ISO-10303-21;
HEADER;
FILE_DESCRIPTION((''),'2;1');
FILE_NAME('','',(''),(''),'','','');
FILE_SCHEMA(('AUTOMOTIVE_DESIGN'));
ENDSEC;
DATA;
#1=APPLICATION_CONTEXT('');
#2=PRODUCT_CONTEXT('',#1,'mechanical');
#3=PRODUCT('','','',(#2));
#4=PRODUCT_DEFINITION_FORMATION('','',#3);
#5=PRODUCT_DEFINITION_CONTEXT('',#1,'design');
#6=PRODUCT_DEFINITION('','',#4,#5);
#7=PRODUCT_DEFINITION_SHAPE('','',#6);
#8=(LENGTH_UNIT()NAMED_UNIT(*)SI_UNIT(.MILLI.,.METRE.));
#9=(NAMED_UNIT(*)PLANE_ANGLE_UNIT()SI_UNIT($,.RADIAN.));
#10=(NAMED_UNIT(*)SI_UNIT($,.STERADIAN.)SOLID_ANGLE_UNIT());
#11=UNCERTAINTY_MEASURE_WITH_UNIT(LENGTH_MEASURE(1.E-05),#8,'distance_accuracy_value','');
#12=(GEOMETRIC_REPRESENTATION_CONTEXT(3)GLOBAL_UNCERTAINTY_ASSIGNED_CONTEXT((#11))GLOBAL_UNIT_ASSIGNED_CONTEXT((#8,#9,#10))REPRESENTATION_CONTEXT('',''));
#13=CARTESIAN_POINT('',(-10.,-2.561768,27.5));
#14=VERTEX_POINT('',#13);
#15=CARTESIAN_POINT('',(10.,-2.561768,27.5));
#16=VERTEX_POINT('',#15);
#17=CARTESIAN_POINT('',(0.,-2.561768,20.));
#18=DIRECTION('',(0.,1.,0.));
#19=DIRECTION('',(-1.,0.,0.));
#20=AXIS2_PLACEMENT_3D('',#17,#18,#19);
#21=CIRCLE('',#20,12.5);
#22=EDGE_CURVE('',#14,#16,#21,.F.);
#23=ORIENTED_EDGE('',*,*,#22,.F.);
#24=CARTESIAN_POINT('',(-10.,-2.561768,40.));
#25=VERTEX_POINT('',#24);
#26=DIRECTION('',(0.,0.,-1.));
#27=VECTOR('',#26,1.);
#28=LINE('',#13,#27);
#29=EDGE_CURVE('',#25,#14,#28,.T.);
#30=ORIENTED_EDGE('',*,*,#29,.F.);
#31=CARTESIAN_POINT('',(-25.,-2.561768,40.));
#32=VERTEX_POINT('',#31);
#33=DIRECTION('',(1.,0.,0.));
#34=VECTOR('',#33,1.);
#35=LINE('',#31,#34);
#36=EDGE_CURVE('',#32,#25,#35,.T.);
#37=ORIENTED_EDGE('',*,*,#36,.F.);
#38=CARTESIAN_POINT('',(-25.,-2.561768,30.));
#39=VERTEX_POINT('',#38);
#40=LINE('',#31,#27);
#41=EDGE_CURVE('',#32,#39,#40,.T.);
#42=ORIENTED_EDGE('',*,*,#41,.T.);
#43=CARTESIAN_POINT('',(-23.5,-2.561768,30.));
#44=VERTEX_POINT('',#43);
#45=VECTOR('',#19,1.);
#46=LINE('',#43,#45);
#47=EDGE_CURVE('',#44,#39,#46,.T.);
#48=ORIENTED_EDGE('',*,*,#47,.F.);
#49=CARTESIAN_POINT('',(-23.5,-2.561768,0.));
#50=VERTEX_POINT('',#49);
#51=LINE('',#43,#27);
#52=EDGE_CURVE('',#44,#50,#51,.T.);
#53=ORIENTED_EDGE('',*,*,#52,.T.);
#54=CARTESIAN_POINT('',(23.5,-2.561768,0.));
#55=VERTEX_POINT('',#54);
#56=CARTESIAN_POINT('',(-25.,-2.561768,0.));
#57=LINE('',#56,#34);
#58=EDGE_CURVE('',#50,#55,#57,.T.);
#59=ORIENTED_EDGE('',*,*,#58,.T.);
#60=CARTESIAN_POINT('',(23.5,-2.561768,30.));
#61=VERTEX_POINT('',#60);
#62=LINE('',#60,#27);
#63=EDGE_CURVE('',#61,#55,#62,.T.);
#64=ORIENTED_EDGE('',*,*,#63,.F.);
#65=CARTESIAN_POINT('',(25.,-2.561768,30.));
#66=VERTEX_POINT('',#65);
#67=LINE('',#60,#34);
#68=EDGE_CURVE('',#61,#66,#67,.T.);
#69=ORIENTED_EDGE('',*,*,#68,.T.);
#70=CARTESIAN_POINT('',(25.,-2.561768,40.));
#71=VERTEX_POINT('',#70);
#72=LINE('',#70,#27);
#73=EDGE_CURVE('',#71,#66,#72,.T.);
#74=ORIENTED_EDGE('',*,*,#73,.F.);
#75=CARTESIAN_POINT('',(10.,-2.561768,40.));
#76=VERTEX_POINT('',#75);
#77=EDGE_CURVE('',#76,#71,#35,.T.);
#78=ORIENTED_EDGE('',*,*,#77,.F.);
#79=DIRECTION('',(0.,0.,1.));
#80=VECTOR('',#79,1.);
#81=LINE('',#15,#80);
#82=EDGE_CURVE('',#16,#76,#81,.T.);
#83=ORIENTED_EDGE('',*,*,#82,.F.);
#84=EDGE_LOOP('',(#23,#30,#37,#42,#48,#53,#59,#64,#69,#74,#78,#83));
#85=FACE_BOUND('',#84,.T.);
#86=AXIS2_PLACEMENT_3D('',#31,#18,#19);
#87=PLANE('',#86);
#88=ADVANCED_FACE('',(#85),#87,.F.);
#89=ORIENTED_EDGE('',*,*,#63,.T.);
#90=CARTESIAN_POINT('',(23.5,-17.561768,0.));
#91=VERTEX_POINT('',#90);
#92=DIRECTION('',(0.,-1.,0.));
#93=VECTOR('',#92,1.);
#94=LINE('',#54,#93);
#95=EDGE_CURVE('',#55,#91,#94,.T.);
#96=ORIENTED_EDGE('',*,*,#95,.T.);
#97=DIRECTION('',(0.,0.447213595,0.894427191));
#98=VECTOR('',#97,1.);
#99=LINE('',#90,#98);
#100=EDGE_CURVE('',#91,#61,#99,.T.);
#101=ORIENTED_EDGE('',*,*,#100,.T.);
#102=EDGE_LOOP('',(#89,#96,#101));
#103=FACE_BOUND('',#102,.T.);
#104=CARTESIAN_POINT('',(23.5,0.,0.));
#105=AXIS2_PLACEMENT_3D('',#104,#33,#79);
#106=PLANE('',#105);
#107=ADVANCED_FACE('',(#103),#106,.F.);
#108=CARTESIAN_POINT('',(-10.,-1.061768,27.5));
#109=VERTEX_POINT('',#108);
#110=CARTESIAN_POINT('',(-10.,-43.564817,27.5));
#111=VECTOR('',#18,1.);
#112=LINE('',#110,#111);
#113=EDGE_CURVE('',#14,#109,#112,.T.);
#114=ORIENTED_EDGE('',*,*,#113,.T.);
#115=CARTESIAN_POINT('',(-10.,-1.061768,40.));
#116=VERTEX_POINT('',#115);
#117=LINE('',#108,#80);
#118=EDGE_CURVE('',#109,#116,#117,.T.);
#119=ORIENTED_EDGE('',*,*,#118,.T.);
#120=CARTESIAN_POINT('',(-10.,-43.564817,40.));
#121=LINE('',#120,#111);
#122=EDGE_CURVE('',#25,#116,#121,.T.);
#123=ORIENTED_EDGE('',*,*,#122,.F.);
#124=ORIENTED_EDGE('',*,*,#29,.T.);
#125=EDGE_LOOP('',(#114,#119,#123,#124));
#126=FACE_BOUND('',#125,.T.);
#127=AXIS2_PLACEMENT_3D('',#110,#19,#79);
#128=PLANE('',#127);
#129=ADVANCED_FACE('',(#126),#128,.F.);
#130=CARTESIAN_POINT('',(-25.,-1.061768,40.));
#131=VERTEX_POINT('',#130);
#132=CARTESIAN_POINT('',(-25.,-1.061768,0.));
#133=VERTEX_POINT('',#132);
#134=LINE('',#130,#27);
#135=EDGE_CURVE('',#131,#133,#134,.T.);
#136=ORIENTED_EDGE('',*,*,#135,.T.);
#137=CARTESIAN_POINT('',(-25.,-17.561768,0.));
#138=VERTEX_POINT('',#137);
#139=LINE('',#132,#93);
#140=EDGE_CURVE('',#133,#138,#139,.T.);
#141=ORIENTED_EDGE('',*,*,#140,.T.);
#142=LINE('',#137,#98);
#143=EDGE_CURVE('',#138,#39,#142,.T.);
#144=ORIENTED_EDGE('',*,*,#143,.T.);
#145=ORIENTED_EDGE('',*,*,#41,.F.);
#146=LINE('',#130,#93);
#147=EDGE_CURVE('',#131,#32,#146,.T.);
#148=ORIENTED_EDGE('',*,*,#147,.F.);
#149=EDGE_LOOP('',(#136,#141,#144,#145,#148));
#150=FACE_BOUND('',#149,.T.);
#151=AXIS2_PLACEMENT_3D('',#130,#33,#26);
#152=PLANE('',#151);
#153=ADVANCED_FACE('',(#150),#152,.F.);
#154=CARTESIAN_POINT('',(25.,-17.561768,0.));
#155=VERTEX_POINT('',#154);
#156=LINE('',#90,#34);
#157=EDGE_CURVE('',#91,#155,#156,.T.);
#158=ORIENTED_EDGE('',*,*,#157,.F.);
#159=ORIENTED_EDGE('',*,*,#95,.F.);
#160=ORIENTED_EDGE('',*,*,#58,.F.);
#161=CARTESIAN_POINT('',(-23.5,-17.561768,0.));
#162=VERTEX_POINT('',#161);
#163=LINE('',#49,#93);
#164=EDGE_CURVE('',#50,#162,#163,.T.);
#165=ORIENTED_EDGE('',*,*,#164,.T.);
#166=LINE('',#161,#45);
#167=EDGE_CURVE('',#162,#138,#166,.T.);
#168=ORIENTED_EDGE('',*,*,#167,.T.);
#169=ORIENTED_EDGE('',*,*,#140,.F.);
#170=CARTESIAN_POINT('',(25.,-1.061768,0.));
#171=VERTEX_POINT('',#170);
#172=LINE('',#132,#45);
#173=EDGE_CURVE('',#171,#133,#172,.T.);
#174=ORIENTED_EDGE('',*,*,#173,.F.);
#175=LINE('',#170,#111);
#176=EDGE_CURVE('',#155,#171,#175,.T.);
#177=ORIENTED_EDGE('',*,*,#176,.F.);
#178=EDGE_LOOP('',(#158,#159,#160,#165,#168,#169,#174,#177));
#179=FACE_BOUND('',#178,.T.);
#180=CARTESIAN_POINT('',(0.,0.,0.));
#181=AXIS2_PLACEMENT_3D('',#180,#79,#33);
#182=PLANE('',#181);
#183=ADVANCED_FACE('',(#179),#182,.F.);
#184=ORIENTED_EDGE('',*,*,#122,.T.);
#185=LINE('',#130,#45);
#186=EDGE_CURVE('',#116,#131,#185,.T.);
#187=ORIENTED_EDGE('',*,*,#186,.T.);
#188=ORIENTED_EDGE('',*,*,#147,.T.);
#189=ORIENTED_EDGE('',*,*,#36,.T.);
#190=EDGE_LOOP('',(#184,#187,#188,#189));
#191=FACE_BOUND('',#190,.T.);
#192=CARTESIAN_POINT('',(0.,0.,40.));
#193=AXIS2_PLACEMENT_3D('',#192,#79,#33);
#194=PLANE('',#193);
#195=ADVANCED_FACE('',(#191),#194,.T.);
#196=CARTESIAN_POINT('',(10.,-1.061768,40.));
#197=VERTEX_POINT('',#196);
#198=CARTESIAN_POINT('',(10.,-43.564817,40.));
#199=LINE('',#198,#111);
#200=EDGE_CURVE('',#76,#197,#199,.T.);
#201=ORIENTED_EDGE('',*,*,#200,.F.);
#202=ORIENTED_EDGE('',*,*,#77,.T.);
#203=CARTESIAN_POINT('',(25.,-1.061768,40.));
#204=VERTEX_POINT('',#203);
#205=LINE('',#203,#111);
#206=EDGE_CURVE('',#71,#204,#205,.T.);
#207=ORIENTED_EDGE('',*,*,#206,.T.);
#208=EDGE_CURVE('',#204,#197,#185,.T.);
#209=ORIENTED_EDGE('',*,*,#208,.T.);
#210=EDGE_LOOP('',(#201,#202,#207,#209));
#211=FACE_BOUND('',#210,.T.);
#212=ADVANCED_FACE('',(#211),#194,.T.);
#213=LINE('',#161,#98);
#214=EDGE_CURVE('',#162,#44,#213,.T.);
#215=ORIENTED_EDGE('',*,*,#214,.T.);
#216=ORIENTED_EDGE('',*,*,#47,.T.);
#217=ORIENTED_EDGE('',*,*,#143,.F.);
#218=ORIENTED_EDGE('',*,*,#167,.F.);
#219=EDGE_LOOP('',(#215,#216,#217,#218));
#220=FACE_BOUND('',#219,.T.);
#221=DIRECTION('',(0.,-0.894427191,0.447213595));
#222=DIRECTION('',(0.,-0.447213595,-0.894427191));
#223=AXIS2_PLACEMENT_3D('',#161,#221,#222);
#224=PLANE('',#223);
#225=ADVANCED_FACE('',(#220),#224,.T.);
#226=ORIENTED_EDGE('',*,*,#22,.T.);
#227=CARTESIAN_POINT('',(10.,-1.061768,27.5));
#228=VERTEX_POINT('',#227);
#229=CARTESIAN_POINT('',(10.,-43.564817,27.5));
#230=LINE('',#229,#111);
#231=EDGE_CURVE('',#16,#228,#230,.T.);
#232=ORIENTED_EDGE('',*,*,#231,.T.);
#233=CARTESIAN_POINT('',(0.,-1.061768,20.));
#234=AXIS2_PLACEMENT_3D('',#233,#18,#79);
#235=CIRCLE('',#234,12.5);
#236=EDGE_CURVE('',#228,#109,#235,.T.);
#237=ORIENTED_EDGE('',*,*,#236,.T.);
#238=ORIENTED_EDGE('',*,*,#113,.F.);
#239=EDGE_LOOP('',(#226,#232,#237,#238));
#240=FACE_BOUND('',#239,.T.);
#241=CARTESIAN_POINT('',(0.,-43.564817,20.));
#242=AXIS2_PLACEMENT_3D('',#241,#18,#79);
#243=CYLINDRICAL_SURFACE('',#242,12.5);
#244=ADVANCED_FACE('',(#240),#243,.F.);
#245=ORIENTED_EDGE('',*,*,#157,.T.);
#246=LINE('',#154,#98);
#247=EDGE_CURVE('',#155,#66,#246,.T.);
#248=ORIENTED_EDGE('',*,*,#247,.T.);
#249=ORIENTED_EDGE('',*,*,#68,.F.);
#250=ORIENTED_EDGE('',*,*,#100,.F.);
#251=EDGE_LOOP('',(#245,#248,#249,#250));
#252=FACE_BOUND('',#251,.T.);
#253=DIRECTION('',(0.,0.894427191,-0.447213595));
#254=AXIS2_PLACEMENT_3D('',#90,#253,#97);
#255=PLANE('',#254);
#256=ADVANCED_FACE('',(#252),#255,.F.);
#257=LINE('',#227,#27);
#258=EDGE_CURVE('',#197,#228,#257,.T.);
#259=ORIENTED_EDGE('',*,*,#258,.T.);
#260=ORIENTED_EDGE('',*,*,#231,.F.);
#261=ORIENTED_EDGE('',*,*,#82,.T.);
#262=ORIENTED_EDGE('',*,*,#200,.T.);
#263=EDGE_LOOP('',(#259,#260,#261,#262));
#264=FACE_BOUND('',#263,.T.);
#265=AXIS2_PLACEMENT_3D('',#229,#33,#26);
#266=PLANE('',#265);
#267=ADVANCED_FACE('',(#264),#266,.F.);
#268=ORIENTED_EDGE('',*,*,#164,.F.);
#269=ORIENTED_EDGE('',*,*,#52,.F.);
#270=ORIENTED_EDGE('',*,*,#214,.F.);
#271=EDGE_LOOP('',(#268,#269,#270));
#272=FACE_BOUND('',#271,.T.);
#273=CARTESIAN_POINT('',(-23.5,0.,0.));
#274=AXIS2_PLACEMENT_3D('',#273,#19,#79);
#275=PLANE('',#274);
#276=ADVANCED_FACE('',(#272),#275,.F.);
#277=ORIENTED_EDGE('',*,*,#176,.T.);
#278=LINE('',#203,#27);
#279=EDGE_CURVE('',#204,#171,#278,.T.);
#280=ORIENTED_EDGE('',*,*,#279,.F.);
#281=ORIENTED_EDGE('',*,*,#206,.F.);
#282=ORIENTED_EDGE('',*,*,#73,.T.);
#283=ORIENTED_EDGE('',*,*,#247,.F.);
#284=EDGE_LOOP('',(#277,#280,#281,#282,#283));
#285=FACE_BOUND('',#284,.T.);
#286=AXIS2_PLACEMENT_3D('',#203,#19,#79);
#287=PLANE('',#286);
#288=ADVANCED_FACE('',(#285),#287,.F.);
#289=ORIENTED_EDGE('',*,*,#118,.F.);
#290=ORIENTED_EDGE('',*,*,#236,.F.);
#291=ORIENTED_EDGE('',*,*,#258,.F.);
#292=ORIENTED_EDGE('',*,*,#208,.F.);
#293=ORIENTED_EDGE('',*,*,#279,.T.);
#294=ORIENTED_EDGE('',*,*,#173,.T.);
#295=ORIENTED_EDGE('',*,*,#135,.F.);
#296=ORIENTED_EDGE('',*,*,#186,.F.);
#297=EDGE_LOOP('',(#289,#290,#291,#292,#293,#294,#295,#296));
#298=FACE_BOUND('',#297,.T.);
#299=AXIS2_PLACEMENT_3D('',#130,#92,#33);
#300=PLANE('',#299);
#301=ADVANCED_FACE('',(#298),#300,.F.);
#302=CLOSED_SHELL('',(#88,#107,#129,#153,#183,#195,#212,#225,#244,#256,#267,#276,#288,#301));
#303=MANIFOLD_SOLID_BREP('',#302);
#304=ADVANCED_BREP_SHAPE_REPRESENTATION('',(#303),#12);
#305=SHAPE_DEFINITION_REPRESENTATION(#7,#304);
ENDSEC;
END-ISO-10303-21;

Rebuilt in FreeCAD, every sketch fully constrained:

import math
import FreeCAD as App
import Part
import Sketcher
from FreeCAD import Vector
Q = App.Units.Quantity

doc = App.newDocument("Part")
body = doc.addObject("PartDesign::Body", "Body")

# Sketch on XY plane
sketch1 = body.newObject("Sketcher::SketchObject", "Sketch")
sketch1.AttachmentSupport = (doc.getObject("XY_Plane"), [""])
sketch1.MapMode = "FlatFace"
sketch1.addGeometry(Part.LineSegment(Vector(-25, -1.061768, 0), Vector(-25, -2.561768, 0)), False)
sketch1.addGeometry(Part.LineSegment(Vector(-25, -2.561768, 0), Vector(25, -2.561768, 0)), False)
sketch1.addGeometry(Part.LineSegment(Vector(25, -2.561768, 0), Vector(25, -1.061768, 0)), False)
sketch1.addGeometry(Part.LineSegment(Vector(25, -1.061768, 0), Vector(-25, -1.061768, 0)), False)
sketch1.addConstraint(Sketcher.Constraint("Coincident", 0, 2, 1, 1))
sketch1.addConstraint(Sketcher.Constraint("Coincident", 1, 2, 2, 1))
sketch1.addConstraint(Sketcher.Constraint("Coincident", 2, 2, 3, 1))
sketch1.addConstraint(Sketcher.Constraint("Coincident", 3, 2, 0, 1))
sketch1.addConstraint(Sketcher.Constraint("Vertical", 0))
sketch1.addConstraint(Sketcher.Constraint("Horizontal", 1))
sketch1.addConstraint(Sketcher.Constraint("Vertical", 2))
sketch1.addConstraint(Sketcher.Constraint("Horizontal", 3))
sketch1.addConstraint(Sketcher.Constraint("DistanceX", 1, 1, 1, 2, Q("50 mm")))
sketch1.addConstraint(Sketcher.Constraint("DistanceY", 0, 2, 0, 1, Q("1.5 mm")))
sketch1.addConstraint(Sketcher.Constraint("DistanceX", 0, 2, -1, 1, Q("25 mm")))
sketch1.addConstraint(Sketcher.Constraint("DistanceY", 0, 2, -1, 1, Q("2.561768 mm")))
pad1 = body.newObject("PartDesign::Pad", "Pad")
pad1.Profile = sketch1
pad1.Length = 40

# Sketch on XZ plane
sketch2 = body.newObject("Sketcher::SketchObject", "Sketch001")
sketch2.AttachmentSupport = (doc.getObject("XZ_Plane"), [""])
sketch2.MapMode = "FlatFace"
sketch2.AttachmentOffset = App.Placement(Vector(0, 0, 1.061768), App.Rotation())
sketch2.addGeometry(Part.LineSegment(Vector(-10, 27.5, 0), Vector(-10, 40, 0)), False)
sketch2.addGeometry(Part.LineSegment(Vector(-10, 40, 0), Vector(10, 40, 0)), False)
sketch2.addGeometry(Part.LineSegment(Vector(10, 40, 0), Vector(10, 27.5, 0)), False)
sketch2.addGeometry(Part.ArcOfCircle(Part.Circle(Vector(0, 20, 0), Vector(0, 0, 1), 12.5), math.radians(143.130102), math.radians(396.869898)), False)
sketch2.addConstraint(Sketcher.Constraint("Coincident", 0, 2, 1, 1))
sketch2.addConstraint(Sketcher.Constraint("Coincident", 1, 2, 2, 1))
sketch2.addConstraint(Sketcher.Constraint("Coincident", 2, 2, 3, 2))
sketch2.addConstraint(Sketcher.Constraint("Coincident", 3, 1, 0, 1))
sketch2.addConstraint(Sketcher.Constraint("Vertical", 0))
sketch2.addConstraint(Sketcher.Constraint("Horizontal", 1))
sketch2.addConstraint(Sketcher.Constraint("Vertical", 2))
sketch2.addConstraint(Sketcher.Constraint("Symmetric", 2, 2, 3, 1, -2))
sketch2.addConstraint(Sketcher.Constraint("Radius", 3, Q("12.5 mm")))
sketch2.addConstraint(Sketcher.Constraint("DistanceX", 1, 1, 1, 2, Q("20 mm")))
sketch2.addConstraint(Sketcher.Constraint("DistanceY", 0, 1, 0, 2, Q("12.5 mm")))
sketch2.addConstraint(Sketcher.Constraint("DistanceY", -1, 1, 3, 3, Q("20 mm")))
pocket1 = body.newObject("PartDesign::Pocket", "Pocket")
pocket1.Profile = sketch2
pocket1.Length = 1.5
pocket1.Reversed = True

# Sketch on YZ plane
sketch3 = body.newObject("Sketcher::SketchObject", "Sketch002")
sketch3.AttachmentSupport = (doc.getObject("YZ_Plane"), [""])
sketch3.MapMode = "FlatFace"
sketch3.AttachmentOffset = App.Placement(Vector(0, 0, -25), App.Rotation())
sketch3.addGeometry(Part.LineSegment(Vector(-2.561768, 0, 0), Vector(-17.561768, 0, 0)), False)
sketch3.addGeometry(Part.LineSegment(Vector(-17.561768, 0, 0), Vector(-2.561768, 30, 0)), False)
sketch3.addGeometry(Part.LineSegment(Vector(-2.561768, 30, 0), Vector(-2.561768, 0, 0)), False)
sketch3.addConstraint(Sketcher.Constraint("Coincident", 0, 2, 1, 1))
sketch3.addConstraint(Sketcher.Constraint("Coincident", 1, 2, 2, 1))
sketch3.addConstraint(Sketcher.Constraint("Coincident", 2, 2, 0, 1))
sketch3.addConstraint(Sketcher.Constraint("Horizontal", 0))
sketch3.addConstraint(Sketcher.Constraint("Vertical", 2))
sketch3.addConstraint(Sketcher.Constraint("PointOnObject", 0, 2, -1))
sketch3.addConstraint(Sketcher.Constraint("DistanceX", 0, 2, 0, 1, Q("15 mm")))
sketch3.addConstraint(Sketcher.Constraint("DistanceY", 2, 2, 2, 1, Q("30 mm")))
sketch3.addConstraint(Sketcher.Constraint("DistanceX", 0, 2, -1, 1, Q("17.561768 mm")))
pad2 = body.newObject("PartDesign::Pad", "Pad001")
pad2.Profile = sketch3
pad2.Length = 1.5
doc.recompute()

mirrored = body.newObject("PartDesign::Mirrored", "Mirrored")
mirrored.Originals = [pad2]
mirrored.MirrorPlane = (doc.getObject("YZ_Plane"), [""])
body.Tip = mirrored

doc.recompute()
